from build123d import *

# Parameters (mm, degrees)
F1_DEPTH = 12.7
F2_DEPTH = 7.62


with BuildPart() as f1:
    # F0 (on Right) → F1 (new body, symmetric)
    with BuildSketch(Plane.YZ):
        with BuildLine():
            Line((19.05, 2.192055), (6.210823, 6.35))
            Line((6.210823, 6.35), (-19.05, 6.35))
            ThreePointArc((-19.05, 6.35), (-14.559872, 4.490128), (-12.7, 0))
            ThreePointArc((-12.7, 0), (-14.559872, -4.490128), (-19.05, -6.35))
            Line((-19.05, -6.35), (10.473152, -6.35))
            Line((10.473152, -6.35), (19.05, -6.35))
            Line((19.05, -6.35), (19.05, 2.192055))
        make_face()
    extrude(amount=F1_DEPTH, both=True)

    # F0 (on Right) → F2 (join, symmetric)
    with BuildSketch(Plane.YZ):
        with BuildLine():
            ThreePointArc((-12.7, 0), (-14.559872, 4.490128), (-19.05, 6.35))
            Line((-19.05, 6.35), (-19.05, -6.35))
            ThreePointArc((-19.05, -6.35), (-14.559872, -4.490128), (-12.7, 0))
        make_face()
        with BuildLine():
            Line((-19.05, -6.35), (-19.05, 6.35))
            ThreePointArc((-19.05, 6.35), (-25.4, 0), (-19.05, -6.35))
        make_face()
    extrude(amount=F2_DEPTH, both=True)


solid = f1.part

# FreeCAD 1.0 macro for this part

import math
import FreeCAD as App
import Part
import Sketcher

V = App.Vector
Q = App.Units.Quantity

doc = App.newDocument("Part")
body = doc.addObject("PartDesign::Body", "Body")

# Sketch on YZ plane
sketch1 = body.newObject("Sketcher::SketchObject", "Sketch")
sketch1.AttachmentSupport = (doc.getObject("YZ_Plane"), [""])
sketch1.MapMode = "FlatFace"
sketch1.addGeometry([
    Part.LineSegment(V(19, 2, 0), V(6, 6, 0)),  # 0
    Part.LineSegment(V(6, 6, 0), V(-19, 6, 0)),  # 1
    Part.ArcOfCircle(Part.Circle(V(-19, 0, 0), V(0, 0, 1), 6), math.radians(0), math.radians(90)),  # 2
    Part.ArcOfCircle(Part.Circle(V(-19, 0, 0), V(0, 0, 1), 6), math.radians(-90), math.radians(0)),  # 3
    Part.LineSegment(V(-19, -6, 0), V(19, -6, 0)),  # 4
    Part.LineSegment(V(19, -6, 0), V(19, 2, 0)),  # 5
], False)
sketch1.addConstraint([
    Sketcher.Constraint("Coincident", 0, 2, 1, 1),
    Sketcher.Constraint("Tangent", 1, 2, 2, 2),
    Sketcher.Constraint("Tangent", 2, 1, 3, 2),
    Sketcher.Constraint("Tangent", 3, 1, 4, 1),
    Sketcher.Constraint("Coincident", 4, 2, 5, 1),
    Sketcher.Constraint("Coincident", 5, 2, 0, 1),
    Sketcher.Constraint("Horizontal", 1),
    Sketcher.Constraint("Horizontal", 4),
    Sketcher.Constraint("Vertical", 5),
    Sketcher.Constraint("Equal", 2, 3),
    Sketcher.Constraint("Symmetric", 1, 2, 4, 2, -1, 1),
    Sketcher.Constraint("PointOnObject", 2, 1, -1),
    Sketcher.Constraint("Radius", 2, Q("0.25 in")),
    Sketcher.Constraint("DistanceX", 4, 1, 4, 2, Q("1.5 in")),
    Sketcher.Constraint("DistanceX", 1, 2, 1, 1, Q("25.260823 mm")),
    Sketcher.Constraint("DistanceY", 5, 1, 5, 2, Q("8.542055 mm")),
])
pad1 = body.newObject("PartDesign::Pad", "Pad")
pad1.Profile = sketch1
pad1.Length = Q("1 in")
pad1.Midplane = True

# Sketch on YZ plane
sketch2 = body.newObject("Sketcher::SketchObject", "Sketch001")
sketch2.AttachmentSupport = (doc.getObject("YZ_Plane"), [""])
sketch2.MapMode = "FlatFace"
sketch2.addGeometry([
    Part.ArcOfCircle(Part.Circle(V(-19, 0, 0), V(0, 0, 1), 6), math.radians(0), math.radians(90)),
    Part.ArcOfCircle(Part.Circle(V(-19, 0, 0), V(0, 0, 1), 6), math.radians(90), math.radians(270)),
    Part.ArcOfCircle(Part.Circle(V(-19, 0, 0), V(0, 0, 1), 6), math.radians(-90), math.radians(0)),
], False)
sketch2.addConstraint([
    Sketcher.Constraint("Tangent", 0, 2, 1, 1),
    Sketcher.Constraint("Tangent", 1, 2, 2, 1),
    Sketcher.Constraint("Tangent", 2, 2, 0, 1),
    Sketcher.Constraint("Symmetric", 0, 2, 1, 2, -1),
    Sketcher.Constraint("PointOnObject", 2, 2, -1),
    Sketcher.Constraint("Vertical", 2, 3, 0, 2),
    Sketcher.Constraint("Radius", 0, Q("0.25 in")),
    Sketcher.Constraint("DistanceX", 2, 2, -1, 1, Q("0.5 in")),
])
pad2 = body.newObject("PartDesign::Pad", "Pad001")
pad2.Profile = sketch2
pad2.Length = Q("0.6 in")
pad2.Midplane = True

doc.recompute()
